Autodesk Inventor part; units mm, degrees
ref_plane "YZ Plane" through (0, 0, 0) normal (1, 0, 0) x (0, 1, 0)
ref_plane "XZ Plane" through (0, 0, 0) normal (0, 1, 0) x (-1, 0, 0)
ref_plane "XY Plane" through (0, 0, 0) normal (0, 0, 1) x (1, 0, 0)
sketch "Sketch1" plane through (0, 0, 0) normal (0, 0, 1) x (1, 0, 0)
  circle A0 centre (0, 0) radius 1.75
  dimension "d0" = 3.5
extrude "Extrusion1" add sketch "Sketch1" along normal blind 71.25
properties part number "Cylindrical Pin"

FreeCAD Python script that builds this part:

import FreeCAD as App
import Part
import Sketcher

V = App.Vector

doc = App.newDocument("Part")
body = doc.addObject("PartDesign::Body", "Body")

# Sketch on XY plane
sketch1 = doc.addObject("Sketcher::SketchObject", "Sketch")
body.addObject(sketch1)
sketch1.AttachmentSupport = (doc.XY_Plane, [""])
sketch1.MapMode = "FlatFace"
sketch1.addGeometry(Part.Circle(V(0, 0, 0), V(0, 0, 1), 1.8), False)
sketch1.addConstraint(Sketcher.Constraint("Coincident", 0, 3, -1, 1))
sketch1.addConstraint(Sketcher.Constraint("Diameter", 0, 3.5))
pad1 = doc.addObject("PartDesign::Pad", "Pad")
body.addObject(pad1)
pad1.Profile = sketch1
pad1.Length = 71.25

doc.recompute()
